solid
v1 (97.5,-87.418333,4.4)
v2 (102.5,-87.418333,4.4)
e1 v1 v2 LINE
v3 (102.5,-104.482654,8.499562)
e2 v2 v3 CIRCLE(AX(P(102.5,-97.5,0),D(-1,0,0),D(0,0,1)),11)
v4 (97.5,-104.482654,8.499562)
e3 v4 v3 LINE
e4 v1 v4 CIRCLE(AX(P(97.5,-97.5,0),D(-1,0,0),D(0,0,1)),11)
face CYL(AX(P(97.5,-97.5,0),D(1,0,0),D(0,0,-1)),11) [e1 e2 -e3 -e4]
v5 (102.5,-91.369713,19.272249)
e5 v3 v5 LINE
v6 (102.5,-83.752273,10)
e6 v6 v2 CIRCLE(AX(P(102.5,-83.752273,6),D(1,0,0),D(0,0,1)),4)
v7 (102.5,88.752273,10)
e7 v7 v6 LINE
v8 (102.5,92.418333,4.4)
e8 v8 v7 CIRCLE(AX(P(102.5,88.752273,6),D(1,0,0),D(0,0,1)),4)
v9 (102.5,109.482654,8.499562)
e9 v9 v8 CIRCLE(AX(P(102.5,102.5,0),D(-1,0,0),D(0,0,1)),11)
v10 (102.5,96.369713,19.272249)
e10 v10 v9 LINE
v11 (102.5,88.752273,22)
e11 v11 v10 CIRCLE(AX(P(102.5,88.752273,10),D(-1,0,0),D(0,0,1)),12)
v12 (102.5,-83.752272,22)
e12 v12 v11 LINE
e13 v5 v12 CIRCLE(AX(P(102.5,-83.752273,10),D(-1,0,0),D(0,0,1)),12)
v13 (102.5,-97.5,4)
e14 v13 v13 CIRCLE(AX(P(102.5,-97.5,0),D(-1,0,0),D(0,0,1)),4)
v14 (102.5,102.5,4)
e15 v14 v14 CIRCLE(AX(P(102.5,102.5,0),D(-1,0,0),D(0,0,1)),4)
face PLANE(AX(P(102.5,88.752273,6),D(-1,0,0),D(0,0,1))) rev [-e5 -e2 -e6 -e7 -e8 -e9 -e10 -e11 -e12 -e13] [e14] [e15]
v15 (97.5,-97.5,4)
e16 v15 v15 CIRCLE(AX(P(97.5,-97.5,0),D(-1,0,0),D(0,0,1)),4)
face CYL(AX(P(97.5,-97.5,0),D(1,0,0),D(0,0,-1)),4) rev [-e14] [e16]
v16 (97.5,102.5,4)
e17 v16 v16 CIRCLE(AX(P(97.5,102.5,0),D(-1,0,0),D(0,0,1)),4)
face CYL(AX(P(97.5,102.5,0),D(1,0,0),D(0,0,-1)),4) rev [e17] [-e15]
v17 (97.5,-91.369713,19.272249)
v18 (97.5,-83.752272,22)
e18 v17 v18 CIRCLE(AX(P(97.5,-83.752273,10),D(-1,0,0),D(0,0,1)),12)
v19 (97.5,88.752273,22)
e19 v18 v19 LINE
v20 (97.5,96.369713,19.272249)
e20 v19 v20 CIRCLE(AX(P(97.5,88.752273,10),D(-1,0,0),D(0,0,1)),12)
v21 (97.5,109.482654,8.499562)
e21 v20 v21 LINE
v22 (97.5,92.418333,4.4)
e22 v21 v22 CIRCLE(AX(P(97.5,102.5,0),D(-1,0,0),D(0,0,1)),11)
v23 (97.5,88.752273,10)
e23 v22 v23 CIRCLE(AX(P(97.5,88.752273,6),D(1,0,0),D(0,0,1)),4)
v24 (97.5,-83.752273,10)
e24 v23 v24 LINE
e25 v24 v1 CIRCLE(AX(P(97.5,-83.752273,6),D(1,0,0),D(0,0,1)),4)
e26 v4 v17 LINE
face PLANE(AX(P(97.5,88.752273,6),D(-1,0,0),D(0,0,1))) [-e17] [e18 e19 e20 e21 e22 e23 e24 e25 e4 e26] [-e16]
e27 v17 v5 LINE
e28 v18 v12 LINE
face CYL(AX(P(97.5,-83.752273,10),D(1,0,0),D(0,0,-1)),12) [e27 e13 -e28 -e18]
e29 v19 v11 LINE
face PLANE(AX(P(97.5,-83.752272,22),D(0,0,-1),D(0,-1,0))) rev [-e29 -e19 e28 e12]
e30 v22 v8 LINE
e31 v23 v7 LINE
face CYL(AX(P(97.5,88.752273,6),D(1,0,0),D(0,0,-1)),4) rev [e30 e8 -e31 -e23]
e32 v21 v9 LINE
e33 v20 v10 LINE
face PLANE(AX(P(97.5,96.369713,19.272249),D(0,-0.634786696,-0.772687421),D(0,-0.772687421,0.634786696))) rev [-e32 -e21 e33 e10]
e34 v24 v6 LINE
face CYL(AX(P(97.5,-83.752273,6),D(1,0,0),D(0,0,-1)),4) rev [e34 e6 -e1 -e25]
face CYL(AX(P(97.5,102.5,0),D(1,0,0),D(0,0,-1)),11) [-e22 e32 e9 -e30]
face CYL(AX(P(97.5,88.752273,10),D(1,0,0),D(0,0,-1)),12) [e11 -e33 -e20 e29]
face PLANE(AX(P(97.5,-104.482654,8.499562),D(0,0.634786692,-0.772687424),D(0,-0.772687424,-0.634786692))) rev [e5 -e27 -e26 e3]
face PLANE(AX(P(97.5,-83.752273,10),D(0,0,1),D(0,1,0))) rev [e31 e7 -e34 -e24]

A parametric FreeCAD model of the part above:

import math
import FreeCAD as App
import Part
import Sketcher

V = App.Vector

doc = App.newDocument("Part")
body = doc.addObject("PartDesign::Body", "Body")

# Sketch on XZ plane
sketch1 = doc.addObject("Sketcher::SketchObject", "Sketch")
body.addObject(sketch1)
sketch1.AttachmentSupport = (doc.XZ_Plane, [""])
sketch1.MapMode = "FlatFace"
sketch1.addGeometry([
    Part.LineSegment(V(186.3, 10, 0), V(13.7, 10, 0)),  # 0
    Part.ArcOfCircle(Part.Circle(V(13.7, 6, 0), V(0, 0, 1), 4), math.radians(90), math.radians(204)),  # 1
    Part.ArcOfCircle(Part.Circle(V(0, 0, 0), V(0, 0, 1), 11), math.radians(129), math.radians(384)),  # 2
    Part.LineSegment(V(-7, 8.5, 0), V(6.1, 19.3, 0)),  # 3
    Part.ArcOfCircle(Part.Circle(V(13.7, 10, 0), V(0, 0, 1), 12), math.radians(90), math.radians(129)),  # 4
    Part.LineSegment(V(13.7, 22, 0), V(186.3, 22, 0)),  # 5
    Part.ArcOfCircle(Part.Circle(V(186.3, 10, 0), V(0, 0, 1), 12), math.radians(51), math.radians(90)),  # 6
    Part.LineSegment(V(193.9, 19.3, 0), V(207, 8.5, 0)),  # 7
    Part.ArcOfCircle(Part.Circle(V(200, 0, 0), V(0, 0, 1), 11), math.radians(156), math.radians(411)),  # 8
    Part.ArcOfCircle(Part.Circle(V(186.3, 6, 0), V(0, 0, 1), 4), math.radians(-24), math.radians(90)),  # 9
    Part.Circle(V(0, 0, 0), V(0, 0, 1), 4),  # 10
    Part.Circle(V(200, 0, 0), V(0, 0, 1), 4),  # 11
], False)
sketch1.addConstraint([
    Sketcher.Constraint("Tangent", 0, 2, 1, 1),
    Sketcher.Constraint("Tangent", 1, 2, 2, 2),
    Sketcher.Constraint("Tangent", 2, 1, 3, 1),
    Sketcher.Constraint("Tangent", 3, 2, 4, 2),
    Sketcher.Constraint("Tangent", 4, 1, 5, 1),
    Sketcher.Constraint("Tangent", 5, 2, 6, 2),
    Sketcher.Constraint("Tangent", 6, 1, 7, 1),
    Sketcher.Constraint("Tangent", 7, 2, 8, 2),
    Sketcher.Constraint("Tangent", 8, 1, 9, 1),
    Sketcher.Constraint("Tangent", 9, 2, 0, 1),
    Sketcher.Constraint("Horizontal", 0),
    Sketcher.Constraint("Horizontal", 5),
    Sketcher.Constraint("Coincident", 2, 3, -1, 1),
    Sketcher.Constraint("Coincident", 10, 3, -1, 1),
    Sketcher.Constraint("Coincident", 11, 3, 8, 3),
    Sketcher.Constraint("Coincident", 0, 2, 4, 3),
    Sketcher.Constraint("Coincident", 9, 2, 6, 3),
    Sketcher.Constraint("Equal", 2, 8),
    Sketcher.Constraint("Equal", 1, 9),
    Sketcher.Constraint("Equal", 9, 10),
    Sketcher.Constraint("Equal", 10, 11),
    Sketcher.Constraint("PointOnObject", 8, 3, -1),
    Sketcher.Constraint("Diameter", 10, 8.0),
    Sketcher.Constraint("Radius", 2, 11.0),
    Sketcher.Constraint("Radius", 4, 12.0),
    Sketcher.Constraint("DistanceY", -1, 1, 1, 3, 6.0),
    Sketcher.Constraint("DistanceX", -1, 1, 8, 3, 200.0),
])
pad1 = doc.addObject("PartDesign::Pad", "Pad")
body.addObject(pad1)
pad1.Profile = sketch1
pad1.Length = 5
pad1.Reversed = True
body2 = doc.addObject("PartDesign::Body", "Body001")
doc.recompute()

body.Placement = App.Placement(V(102.5, -97.5, 0), App.Rotation(V(0, 0, 1), 90))
boolean = doc.addObject("PartDesign::Boolean", "Boolean")
body2.addObject(boolean)
boolean.Type = "Fuse"
boolean.addObjects([body])

doc.recompute()
